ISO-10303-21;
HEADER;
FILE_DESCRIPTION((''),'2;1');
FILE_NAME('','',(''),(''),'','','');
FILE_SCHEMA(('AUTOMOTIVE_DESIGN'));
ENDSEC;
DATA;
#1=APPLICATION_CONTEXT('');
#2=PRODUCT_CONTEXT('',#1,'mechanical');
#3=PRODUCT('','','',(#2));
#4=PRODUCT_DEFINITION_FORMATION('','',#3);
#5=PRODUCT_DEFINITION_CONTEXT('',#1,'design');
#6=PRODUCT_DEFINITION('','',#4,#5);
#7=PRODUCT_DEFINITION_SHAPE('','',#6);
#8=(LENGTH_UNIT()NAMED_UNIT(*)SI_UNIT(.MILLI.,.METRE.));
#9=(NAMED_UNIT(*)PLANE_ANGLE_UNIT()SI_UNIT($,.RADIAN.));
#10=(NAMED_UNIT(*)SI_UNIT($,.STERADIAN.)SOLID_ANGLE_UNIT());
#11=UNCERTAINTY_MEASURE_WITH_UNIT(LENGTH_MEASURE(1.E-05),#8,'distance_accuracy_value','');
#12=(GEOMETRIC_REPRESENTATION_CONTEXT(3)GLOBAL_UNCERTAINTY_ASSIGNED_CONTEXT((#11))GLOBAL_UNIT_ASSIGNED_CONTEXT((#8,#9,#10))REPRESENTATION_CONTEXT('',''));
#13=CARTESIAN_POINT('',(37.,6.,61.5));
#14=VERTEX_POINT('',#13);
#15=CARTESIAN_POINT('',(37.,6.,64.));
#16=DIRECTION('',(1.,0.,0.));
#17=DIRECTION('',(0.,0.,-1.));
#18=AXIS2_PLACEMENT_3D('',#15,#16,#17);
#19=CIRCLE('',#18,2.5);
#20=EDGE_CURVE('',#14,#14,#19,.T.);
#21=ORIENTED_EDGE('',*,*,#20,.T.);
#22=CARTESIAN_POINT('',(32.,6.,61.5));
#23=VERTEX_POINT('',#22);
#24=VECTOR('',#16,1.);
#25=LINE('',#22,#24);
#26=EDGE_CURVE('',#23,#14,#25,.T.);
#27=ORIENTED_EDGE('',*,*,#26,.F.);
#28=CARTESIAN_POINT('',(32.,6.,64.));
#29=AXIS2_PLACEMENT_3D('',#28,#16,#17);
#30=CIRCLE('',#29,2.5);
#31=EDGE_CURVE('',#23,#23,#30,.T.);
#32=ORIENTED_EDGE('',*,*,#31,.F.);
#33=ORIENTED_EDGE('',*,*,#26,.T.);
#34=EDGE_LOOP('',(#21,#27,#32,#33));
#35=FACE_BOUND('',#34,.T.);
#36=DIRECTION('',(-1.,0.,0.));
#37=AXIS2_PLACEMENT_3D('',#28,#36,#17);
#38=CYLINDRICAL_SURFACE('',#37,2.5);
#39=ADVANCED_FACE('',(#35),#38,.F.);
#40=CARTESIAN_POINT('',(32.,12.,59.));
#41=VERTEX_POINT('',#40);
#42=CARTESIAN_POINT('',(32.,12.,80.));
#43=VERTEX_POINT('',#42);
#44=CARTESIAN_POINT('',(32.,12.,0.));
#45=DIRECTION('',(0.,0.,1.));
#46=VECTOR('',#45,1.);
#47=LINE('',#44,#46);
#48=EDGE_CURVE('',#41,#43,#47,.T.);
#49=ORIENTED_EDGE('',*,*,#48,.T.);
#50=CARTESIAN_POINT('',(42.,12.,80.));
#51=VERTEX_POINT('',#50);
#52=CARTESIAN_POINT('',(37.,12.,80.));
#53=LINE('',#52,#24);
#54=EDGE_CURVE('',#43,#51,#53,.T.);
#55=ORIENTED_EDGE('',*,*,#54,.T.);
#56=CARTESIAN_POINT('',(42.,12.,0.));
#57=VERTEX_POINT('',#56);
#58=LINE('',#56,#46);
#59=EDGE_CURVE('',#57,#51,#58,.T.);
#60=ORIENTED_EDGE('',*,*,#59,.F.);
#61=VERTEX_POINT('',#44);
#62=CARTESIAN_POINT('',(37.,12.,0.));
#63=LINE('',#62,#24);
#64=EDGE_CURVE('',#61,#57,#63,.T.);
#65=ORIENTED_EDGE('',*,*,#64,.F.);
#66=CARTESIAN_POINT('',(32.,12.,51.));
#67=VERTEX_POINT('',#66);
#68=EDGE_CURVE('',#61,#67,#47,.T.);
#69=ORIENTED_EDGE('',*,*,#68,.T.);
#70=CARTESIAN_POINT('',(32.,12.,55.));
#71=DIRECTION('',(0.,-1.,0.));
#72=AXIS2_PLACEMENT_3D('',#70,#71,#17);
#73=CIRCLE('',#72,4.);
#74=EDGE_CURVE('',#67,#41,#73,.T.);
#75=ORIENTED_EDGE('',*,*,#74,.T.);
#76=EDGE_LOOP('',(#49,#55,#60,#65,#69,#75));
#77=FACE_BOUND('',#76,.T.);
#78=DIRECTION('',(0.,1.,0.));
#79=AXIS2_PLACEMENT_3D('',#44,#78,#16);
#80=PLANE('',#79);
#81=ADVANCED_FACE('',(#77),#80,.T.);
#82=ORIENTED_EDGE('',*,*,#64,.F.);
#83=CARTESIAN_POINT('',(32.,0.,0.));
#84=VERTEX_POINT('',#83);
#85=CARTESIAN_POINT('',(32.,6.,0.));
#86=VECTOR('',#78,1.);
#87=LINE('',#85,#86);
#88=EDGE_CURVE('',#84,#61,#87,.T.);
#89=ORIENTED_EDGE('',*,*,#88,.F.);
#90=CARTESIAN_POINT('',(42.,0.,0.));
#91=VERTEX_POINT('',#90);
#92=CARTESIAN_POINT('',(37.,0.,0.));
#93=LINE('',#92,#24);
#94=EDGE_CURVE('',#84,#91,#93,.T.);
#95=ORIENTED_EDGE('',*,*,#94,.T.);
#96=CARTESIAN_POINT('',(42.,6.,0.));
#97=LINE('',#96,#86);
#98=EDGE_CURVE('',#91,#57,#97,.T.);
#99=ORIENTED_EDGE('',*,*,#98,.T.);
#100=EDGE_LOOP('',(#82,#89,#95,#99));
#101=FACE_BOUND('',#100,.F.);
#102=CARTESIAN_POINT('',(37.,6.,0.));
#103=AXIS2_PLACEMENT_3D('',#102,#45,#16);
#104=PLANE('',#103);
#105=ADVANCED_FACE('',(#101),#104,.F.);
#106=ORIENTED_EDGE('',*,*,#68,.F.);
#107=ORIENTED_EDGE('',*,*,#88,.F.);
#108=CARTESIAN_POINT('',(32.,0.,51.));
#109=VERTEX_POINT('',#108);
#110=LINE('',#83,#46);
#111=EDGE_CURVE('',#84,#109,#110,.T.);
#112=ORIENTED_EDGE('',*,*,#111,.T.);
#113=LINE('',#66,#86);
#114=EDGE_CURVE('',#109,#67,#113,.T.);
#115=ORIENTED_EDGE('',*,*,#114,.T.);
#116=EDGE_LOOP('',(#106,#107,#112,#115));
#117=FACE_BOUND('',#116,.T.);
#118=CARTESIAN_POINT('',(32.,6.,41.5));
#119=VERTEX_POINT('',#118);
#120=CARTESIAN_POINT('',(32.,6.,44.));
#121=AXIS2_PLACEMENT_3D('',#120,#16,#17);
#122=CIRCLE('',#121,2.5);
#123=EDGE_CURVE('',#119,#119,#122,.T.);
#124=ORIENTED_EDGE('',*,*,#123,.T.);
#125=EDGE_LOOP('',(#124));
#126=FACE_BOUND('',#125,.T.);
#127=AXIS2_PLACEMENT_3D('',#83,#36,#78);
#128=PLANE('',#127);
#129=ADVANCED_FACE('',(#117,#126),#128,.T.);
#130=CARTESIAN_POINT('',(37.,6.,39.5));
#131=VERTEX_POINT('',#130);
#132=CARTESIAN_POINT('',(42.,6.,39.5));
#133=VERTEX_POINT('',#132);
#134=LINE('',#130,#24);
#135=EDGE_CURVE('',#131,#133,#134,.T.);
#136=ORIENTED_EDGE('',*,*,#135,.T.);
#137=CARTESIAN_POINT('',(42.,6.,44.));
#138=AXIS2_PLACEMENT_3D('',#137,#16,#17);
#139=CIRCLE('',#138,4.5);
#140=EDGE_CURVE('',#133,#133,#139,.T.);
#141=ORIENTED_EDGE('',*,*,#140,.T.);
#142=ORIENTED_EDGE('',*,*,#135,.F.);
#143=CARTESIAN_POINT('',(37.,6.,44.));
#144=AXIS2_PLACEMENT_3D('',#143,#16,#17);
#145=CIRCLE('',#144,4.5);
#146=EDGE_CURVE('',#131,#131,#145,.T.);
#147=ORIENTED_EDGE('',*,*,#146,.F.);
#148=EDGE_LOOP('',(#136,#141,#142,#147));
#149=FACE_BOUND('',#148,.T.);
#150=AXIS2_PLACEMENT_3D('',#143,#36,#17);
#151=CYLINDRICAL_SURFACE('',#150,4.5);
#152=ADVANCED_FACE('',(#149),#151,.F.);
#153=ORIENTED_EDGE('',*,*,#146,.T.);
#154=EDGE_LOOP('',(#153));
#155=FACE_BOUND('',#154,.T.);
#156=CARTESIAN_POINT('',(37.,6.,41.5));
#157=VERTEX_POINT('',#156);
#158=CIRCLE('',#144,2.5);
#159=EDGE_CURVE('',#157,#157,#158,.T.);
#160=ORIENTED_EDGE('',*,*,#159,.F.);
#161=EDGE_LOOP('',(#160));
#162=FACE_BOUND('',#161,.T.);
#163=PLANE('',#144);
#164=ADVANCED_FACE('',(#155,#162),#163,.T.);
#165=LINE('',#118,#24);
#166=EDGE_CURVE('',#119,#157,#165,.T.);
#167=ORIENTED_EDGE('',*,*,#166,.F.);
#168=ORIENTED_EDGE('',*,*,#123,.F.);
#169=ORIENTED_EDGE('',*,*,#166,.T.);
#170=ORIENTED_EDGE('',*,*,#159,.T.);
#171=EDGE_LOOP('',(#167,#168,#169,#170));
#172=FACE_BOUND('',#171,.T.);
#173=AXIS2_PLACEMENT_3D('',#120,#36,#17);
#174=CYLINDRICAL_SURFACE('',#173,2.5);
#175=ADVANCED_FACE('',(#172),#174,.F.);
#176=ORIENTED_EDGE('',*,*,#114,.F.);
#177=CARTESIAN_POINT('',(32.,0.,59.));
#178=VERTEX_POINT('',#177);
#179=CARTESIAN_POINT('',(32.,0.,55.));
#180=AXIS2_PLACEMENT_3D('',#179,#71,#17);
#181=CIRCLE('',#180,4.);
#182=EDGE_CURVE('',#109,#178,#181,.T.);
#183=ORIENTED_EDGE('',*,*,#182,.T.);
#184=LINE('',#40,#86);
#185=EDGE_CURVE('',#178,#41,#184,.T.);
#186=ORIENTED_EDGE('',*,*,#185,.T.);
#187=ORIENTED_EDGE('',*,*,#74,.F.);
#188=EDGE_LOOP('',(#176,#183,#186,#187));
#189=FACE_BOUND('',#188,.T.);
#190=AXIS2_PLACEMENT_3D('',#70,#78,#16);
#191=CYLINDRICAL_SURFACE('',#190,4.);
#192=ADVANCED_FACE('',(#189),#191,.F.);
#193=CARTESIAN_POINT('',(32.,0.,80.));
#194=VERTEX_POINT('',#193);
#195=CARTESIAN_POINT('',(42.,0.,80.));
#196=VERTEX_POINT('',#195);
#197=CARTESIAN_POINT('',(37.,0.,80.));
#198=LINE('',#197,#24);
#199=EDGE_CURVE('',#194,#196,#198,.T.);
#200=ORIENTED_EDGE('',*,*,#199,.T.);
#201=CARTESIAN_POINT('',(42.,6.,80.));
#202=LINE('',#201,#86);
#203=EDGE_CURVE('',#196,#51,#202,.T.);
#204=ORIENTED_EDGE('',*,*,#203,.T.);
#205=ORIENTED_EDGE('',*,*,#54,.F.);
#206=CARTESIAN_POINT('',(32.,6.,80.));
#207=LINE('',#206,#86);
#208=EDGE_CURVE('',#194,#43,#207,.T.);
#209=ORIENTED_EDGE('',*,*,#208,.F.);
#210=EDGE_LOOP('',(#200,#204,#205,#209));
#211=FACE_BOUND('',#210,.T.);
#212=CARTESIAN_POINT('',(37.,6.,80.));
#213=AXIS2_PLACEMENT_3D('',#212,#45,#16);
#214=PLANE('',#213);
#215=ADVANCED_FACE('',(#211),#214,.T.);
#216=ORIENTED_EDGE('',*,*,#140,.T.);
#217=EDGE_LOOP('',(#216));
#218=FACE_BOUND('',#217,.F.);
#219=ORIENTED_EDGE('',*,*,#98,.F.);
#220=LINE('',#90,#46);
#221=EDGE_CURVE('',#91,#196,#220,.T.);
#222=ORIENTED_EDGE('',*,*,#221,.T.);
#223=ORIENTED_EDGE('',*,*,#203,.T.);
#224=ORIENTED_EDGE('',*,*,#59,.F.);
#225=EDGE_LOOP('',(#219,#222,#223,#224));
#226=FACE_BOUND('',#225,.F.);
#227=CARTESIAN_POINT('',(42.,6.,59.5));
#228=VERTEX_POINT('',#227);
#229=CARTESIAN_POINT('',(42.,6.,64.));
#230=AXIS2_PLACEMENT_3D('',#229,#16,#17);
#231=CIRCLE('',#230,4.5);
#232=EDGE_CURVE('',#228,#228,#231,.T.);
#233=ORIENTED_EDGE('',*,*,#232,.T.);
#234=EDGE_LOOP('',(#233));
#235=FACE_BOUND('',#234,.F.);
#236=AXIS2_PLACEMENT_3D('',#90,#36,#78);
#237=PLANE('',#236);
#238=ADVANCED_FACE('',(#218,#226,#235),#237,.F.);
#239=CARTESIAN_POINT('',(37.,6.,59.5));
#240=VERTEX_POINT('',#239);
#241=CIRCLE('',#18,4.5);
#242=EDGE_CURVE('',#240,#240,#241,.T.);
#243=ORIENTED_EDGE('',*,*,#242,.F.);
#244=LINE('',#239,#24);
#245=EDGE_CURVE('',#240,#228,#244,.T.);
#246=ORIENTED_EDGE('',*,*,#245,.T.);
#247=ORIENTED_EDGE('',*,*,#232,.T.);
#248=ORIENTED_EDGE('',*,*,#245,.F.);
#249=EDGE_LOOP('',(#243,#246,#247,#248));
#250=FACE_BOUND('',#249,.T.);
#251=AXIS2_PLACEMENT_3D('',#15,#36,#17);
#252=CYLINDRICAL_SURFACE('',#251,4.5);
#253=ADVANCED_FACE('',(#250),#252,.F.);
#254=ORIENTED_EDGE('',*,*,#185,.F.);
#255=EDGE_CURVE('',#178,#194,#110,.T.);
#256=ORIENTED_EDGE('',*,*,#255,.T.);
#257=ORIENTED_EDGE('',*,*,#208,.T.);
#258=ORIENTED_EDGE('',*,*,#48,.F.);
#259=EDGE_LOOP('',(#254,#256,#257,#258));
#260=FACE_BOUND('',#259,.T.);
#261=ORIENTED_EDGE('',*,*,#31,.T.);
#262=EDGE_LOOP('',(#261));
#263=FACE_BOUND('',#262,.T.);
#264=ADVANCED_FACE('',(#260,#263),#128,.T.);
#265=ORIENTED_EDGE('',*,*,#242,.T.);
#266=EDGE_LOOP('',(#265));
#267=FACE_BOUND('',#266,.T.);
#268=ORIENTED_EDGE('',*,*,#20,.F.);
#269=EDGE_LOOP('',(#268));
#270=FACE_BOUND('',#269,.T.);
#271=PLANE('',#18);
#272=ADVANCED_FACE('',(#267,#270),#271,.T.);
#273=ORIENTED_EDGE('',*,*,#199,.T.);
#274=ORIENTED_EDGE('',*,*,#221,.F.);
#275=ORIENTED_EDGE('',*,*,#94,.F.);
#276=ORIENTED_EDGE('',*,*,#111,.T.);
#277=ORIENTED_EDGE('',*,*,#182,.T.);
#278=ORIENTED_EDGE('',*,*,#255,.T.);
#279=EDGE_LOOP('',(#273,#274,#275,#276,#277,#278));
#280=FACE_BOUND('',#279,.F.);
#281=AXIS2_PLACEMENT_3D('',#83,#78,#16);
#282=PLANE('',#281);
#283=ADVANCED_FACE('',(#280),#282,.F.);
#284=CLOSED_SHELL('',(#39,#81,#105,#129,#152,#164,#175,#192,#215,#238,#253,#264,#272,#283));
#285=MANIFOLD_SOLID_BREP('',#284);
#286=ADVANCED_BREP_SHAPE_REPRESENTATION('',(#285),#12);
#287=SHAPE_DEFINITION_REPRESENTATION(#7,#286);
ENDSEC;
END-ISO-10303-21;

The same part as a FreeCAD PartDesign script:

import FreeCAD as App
import Part
import Sketcher

V = App.Vector

doc = App.newDocument("Part")
params = doc.addObject("Spreadsheet::Sheet", "Params")
for row, (alias, value) in enumerate([
    ("sketch1_diameter", "8 mm"),
    ("pad1_length", "12 mm"),
    ("sketch2_diameter", "9 mm"),
    ("pad2_length", "5 mm"),
    ("sketch3_diameter", "5 mm"),
    ("pad3_length", "5 mm"),
    ("sketch4_diameter", "9 mm"),
    ("pad4_length", "5 mm"),
    ("sketch5_diameter", "5 mm"),
    ("pad5_length", "5 mm"),
    ("sketch6_width", "10 mm"),
    ("sketch6_height", "12 mm"),
    ("pad6_length", "80 mm"),
], start=1):
    params.set(f"A{row}", alias)
    params.set(f"B{row}", "=" + value)
    params.setAlias(f"B{row}", alias)

body = doc.addObject("PartDesign::Body", "Body")

# Sketch on XZ plane
sketch1 = doc.addObject("Sketcher::SketchObject", "Sketch")
body.addObject(sketch1)
sketch1.AttachmentSupport = (doc.XZ_Plane, [""])
sketch1.MapMode = "FlatFace"
sketch1.AttachmentOffset = App.Placement(V(0, 0, -12), App.Rotation())
sketch1.addGeometry(Part.Circle(V(32, 55, 0), V(0, 0, 1), 4), False)
sketch1.addConstraint(Sketcher.Constraint("Diameter", 0, 8.0))
sketch1.addConstraint(Sketcher.Constraint("DistanceX", -1, 1, 0, 3, 32.0))
sketch1.addConstraint(Sketcher.Constraint("DistanceY", -1, 1, 0, 3, 55.0))
sketch1.setExpression("Constraints[0]", "Params.sketch1_diameter")
pad1 = doc.addObject("PartDesign::Pad", "Pad")
body.addObject(pad1)
pad1.Profile = sketch1
pad1.setExpression("Length", "Params.pad1_length")
body2 = doc.addObject("PartDesign::Body", "Body001")

# Sketch on YZ plane
sketch2 = doc.addObject("Sketcher::SketchObject", "Sketch001")
body2.addObject(sketch2)
sketch2.AttachmentSupport = (doc.getObject("YZ_Plane001"), [""])
sketch2.MapMode = "FlatFace"
sketch2.AttachmentOffset = App.Placement(V(0, 0, 37), App.Rotation())
sketch2.addGeometry(Part.Circle(V(5, 55, 0), V(0, 0, 1), 4.5), False)
sketch2.addConstraint(Sketcher.Constraint("Diameter", 0, 9.0))
sketch2.addConstraint(Sketcher.Constraint("DistanceX", -1, 1, 0, 3, 5.0))
sketch2.addConstraint(Sketcher.Constraint("DistanceY", -1, 1, 0, 3, 55.0))
sketch2.setExpression("Constraints[0]", "Params.sketch2_diameter")
pad2 = doc.addObject("PartDesign::Pad", "Pad001")
body2.addObject(pad2)
pad2.Profile = sketch2
pad2.setExpression("Length", "Params.pad2_length")
body3 = doc.addObject("PartDesign::Body", "Body002")

# Sketch on YZ plane
sketch3 = doc.addObject("Sketcher::SketchObject", "Sketch002")
body3.addObject(sketch3)
sketch3.AttachmentSupport = (doc.getObject("YZ_Plane002"), [""])
sketch3.MapMode = "FlatFace"
sketch3.AttachmentOffset = App.Placement(V(0, 0, 32), App.Rotation())
sketch3.addGeometry(Part.Circle(V(5, 55, 0), V(0, 0, 1), 2.5), False)
sketch3.addConstraint(Sketcher.Constraint("Diameter", 0, 5.0))
sketch3.addConstraint(Sketcher.Constraint("DistanceX", -1, 1, 0, 3, 5.0))
sketch3.addConstraint(Sketcher.Constraint("DistanceY", -1, 1, 0, 3, 55.0))
sketch3.setExpression("Constraints[0]", "Params.sketch3_diameter")
pad3 = doc.addObject("PartDesign::Pad", "Pad002")
body3.addObject(pad3)
pad3.Profile = sketch3
pad3.setExpression("Length", "Params.pad3_length")
doc.recompute()

boolean = doc.addObject("PartDesign::Boolean", "Boolean")
body3.addObject(boolean)
boolean.Type = "Fuse"
boolean.addObjects([body2])
body4 = doc.addObject("PartDesign::Body", "Body003")
doc.recompute()

body3.Placement = App.Placement(V(0, 1, 9), App.Rotation(V(0, 0, 1), 0))
boolean2 = doc.addObject("PartDesign::Boolean", "Boolean001")
body4.addObject(boolean2)
boolean2.Type = "Fuse"
boolean2.addObjects([body3])
body5 = doc.addObject("PartDesign::Body", "Body004")

# Sketch on YZ plane
sketch4 = doc.addObject("Sketcher::SketchObject", "Sketch003")
body5.addObject(sketch4)
sketch4.AttachmentSupport = (doc.getObject("YZ_Plane004"), [""])
sketch4.MapMode = "FlatFace"
sketch4.AttachmentOffset = App.Placement(V(0, 0, 37), App.Rotation())
sketch4.addGeometry(Part.Circle(V(5, 55, 0), V(0, 0, 1), 4.5), False)
sketch4.addConstraint(Sketcher.Constraint("Diameter", 0, 9.0))
sketch4.addConstraint(Sketcher.Constraint("DistanceX", -1, 1, 0, 3, 5.0))
sketch4.addConstraint(Sketcher.Constraint("DistanceY", -1, 1, 0, 3, 55.0))
sketch4.setExpression("Constraints[0]", "Params.sketch4_diameter")
pad4 = doc.addObject("PartDesign::Pad", "Pad003")
body5.addObject(pad4)
pad4.Profile = sketch4
pad4.setExpression("Length", "Params.pad4_length")
body6 = doc.addObject("PartDesign::Body", "Body005")

# Sketch on YZ plane
sketch5 = doc.addObject("Sketcher::SketchObject", "Sketch004")
body6.addObject(sketch5)
sketch5.AttachmentSupport = (doc.getObject("YZ_Plane005"), [""])
sketch5.MapMode = "FlatFace"
sketch5.AttachmentOffset = App.Placement(V(0, 0, 32), App.Rotation())
sketch5.addGeometry(Part.Circle(V(5, 55, 0), V(0, 0, 1), 2.5), False)
sketch5.addConstraint(Sketcher.Constraint("Diameter", 0, 5.0))
sketch5.addConstraint(Sketcher.Constraint("DistanceX", -1, 1, 0, 3, 5.0))
sketch5.addConstraint(Sketcher.Constraint("DistanceY", -1, 1, 0, 3, 55.0))
sketch5.setExpression("Constraints[0]", "Params.sketch5_diameter")
pad5 = doc.addObject("PartDesign::Pad", "Pad004")
body6.addObject(pad5)
pad5.Profile = sketch5
pad5.setExpression("Length", "Params.pad5_length")
doc.recompute()

boolean3 = doc.addObject("PartDesign::Boolean", "Boolean002")
body6.addObject(boolean3)
boolean3.Type = "Fuse"
boolean3.addObjects([body5])
body7 = doc.addObject("PartDesign::Body", "Body006")
body7.AllowCompound = True
doc.recompute()

body6.Placement = App.Placement(V(0, 1, -11), App.Rotation(V(0, 0, 1), 0))
boolean4 = doc.addObject("PartDesign::Boolean", "Boolean003")
body7.addObject(boolean4)
boolean4.Type = "Fuse"
boolean4.addObjects([body6])
doc.recompute()

boolean5 = doc.addObject("PartDesign::Boolean", "Boolean004")
body7.addObject(boolean5)
boolean5.Type = "Fuse"
boolean5.addObjects([body4])
body8 = doc.addObject("PartDesign::Body", "Body007")

# Sketch on XY plane
sketch6 = doc.addObject("Sketcher::SketchObject", "Sketch005")
body8.addObject(sketch6)
sketch6.AttachmentSupport = (doc.getObject("XY_Plane007"), [""])
sketch6.MapMode = "FlatFace"
sketch6.addGeometry(Part.LineSegment(V(32, 12, 0), V(32, 0, 0)), False)
sketch6.addGeometry(Part.LineSegment(V(32, 0, 0), V(42, 0, 0)), False)
sketch6.addGeometry(Part.LineSegment(V(42, 0, 0), V(42, 12, 0)), False)
sketch6.addGeometry(Part.LineSegment(V(42, 12, 0), V(32, 12, 0)), False)
sketch6.addConstraint(Sketcher.Constraint("Coincident", 0, 2, 1, 1))
sketch6.addConstraint(Sketcher.Constraint("Coincident", 1, 2, 2, 1))
sketch6.addConstraint(Sketcher.Constraint("Coincident", 2, 2, 3, 1))
sketch6.addConstraint(Sketcher.Constraint("Coincident", 3, 2, 0, 1))
sketch6.addConstraint(Sketcher.Constraint("Vertical", 0))
sketch6.addConstraint(Sketcher.Constraint("Horizontal", 1))
sketch6.addConstraint(Sketcher.Constraint("Vertical", 2))
sketch6.addConstraint(Sketcher.Constraint("Horizontal", 3))
sketch6.addConstraint(Sketcher.Constraint("PointOnObject", 0, 2, -1))
sketch6.addConstraint(Sketcher.Constraint("DistanceX", 1, 1, 1, 2, 10.0))
sketch6.addConstraint(Sketcher.Constraint("DistanceY", 0, 2, 0, 1, 12.0))
sketch6.addConstraint(Sketcher.Constraint("DistanceX", -1, 1, 0, 2, 32.0))
sketch6.setExpression("Constraints[9]", "Params.sketch6_width")
sketch6.setExpression("Constraints[10]", "Params.sketch6_height")
pad6 = doc.addObject("PartDesign::Pad", "Pad005")
body8.addObject(pad6)
pad6.Profile = sketch6
pad6.setExpression("Length", "Params.pad6_length")
doc.recompute()

boolean6 = doc.addObject("PartDesign::Boolean", "Boolean005")
body8.addObject(boolean6)
boolean6.Type = "Cut"
boolean6.addObjects([body7])
doc.recompute()

boolean7 = doc.addObject("PartDesign::Boolean", "Boolean006")
body8.addObject(boolean7)
boolean7.Type = "Cut"
boolean7.addObjects([body])

doc.recompute()
